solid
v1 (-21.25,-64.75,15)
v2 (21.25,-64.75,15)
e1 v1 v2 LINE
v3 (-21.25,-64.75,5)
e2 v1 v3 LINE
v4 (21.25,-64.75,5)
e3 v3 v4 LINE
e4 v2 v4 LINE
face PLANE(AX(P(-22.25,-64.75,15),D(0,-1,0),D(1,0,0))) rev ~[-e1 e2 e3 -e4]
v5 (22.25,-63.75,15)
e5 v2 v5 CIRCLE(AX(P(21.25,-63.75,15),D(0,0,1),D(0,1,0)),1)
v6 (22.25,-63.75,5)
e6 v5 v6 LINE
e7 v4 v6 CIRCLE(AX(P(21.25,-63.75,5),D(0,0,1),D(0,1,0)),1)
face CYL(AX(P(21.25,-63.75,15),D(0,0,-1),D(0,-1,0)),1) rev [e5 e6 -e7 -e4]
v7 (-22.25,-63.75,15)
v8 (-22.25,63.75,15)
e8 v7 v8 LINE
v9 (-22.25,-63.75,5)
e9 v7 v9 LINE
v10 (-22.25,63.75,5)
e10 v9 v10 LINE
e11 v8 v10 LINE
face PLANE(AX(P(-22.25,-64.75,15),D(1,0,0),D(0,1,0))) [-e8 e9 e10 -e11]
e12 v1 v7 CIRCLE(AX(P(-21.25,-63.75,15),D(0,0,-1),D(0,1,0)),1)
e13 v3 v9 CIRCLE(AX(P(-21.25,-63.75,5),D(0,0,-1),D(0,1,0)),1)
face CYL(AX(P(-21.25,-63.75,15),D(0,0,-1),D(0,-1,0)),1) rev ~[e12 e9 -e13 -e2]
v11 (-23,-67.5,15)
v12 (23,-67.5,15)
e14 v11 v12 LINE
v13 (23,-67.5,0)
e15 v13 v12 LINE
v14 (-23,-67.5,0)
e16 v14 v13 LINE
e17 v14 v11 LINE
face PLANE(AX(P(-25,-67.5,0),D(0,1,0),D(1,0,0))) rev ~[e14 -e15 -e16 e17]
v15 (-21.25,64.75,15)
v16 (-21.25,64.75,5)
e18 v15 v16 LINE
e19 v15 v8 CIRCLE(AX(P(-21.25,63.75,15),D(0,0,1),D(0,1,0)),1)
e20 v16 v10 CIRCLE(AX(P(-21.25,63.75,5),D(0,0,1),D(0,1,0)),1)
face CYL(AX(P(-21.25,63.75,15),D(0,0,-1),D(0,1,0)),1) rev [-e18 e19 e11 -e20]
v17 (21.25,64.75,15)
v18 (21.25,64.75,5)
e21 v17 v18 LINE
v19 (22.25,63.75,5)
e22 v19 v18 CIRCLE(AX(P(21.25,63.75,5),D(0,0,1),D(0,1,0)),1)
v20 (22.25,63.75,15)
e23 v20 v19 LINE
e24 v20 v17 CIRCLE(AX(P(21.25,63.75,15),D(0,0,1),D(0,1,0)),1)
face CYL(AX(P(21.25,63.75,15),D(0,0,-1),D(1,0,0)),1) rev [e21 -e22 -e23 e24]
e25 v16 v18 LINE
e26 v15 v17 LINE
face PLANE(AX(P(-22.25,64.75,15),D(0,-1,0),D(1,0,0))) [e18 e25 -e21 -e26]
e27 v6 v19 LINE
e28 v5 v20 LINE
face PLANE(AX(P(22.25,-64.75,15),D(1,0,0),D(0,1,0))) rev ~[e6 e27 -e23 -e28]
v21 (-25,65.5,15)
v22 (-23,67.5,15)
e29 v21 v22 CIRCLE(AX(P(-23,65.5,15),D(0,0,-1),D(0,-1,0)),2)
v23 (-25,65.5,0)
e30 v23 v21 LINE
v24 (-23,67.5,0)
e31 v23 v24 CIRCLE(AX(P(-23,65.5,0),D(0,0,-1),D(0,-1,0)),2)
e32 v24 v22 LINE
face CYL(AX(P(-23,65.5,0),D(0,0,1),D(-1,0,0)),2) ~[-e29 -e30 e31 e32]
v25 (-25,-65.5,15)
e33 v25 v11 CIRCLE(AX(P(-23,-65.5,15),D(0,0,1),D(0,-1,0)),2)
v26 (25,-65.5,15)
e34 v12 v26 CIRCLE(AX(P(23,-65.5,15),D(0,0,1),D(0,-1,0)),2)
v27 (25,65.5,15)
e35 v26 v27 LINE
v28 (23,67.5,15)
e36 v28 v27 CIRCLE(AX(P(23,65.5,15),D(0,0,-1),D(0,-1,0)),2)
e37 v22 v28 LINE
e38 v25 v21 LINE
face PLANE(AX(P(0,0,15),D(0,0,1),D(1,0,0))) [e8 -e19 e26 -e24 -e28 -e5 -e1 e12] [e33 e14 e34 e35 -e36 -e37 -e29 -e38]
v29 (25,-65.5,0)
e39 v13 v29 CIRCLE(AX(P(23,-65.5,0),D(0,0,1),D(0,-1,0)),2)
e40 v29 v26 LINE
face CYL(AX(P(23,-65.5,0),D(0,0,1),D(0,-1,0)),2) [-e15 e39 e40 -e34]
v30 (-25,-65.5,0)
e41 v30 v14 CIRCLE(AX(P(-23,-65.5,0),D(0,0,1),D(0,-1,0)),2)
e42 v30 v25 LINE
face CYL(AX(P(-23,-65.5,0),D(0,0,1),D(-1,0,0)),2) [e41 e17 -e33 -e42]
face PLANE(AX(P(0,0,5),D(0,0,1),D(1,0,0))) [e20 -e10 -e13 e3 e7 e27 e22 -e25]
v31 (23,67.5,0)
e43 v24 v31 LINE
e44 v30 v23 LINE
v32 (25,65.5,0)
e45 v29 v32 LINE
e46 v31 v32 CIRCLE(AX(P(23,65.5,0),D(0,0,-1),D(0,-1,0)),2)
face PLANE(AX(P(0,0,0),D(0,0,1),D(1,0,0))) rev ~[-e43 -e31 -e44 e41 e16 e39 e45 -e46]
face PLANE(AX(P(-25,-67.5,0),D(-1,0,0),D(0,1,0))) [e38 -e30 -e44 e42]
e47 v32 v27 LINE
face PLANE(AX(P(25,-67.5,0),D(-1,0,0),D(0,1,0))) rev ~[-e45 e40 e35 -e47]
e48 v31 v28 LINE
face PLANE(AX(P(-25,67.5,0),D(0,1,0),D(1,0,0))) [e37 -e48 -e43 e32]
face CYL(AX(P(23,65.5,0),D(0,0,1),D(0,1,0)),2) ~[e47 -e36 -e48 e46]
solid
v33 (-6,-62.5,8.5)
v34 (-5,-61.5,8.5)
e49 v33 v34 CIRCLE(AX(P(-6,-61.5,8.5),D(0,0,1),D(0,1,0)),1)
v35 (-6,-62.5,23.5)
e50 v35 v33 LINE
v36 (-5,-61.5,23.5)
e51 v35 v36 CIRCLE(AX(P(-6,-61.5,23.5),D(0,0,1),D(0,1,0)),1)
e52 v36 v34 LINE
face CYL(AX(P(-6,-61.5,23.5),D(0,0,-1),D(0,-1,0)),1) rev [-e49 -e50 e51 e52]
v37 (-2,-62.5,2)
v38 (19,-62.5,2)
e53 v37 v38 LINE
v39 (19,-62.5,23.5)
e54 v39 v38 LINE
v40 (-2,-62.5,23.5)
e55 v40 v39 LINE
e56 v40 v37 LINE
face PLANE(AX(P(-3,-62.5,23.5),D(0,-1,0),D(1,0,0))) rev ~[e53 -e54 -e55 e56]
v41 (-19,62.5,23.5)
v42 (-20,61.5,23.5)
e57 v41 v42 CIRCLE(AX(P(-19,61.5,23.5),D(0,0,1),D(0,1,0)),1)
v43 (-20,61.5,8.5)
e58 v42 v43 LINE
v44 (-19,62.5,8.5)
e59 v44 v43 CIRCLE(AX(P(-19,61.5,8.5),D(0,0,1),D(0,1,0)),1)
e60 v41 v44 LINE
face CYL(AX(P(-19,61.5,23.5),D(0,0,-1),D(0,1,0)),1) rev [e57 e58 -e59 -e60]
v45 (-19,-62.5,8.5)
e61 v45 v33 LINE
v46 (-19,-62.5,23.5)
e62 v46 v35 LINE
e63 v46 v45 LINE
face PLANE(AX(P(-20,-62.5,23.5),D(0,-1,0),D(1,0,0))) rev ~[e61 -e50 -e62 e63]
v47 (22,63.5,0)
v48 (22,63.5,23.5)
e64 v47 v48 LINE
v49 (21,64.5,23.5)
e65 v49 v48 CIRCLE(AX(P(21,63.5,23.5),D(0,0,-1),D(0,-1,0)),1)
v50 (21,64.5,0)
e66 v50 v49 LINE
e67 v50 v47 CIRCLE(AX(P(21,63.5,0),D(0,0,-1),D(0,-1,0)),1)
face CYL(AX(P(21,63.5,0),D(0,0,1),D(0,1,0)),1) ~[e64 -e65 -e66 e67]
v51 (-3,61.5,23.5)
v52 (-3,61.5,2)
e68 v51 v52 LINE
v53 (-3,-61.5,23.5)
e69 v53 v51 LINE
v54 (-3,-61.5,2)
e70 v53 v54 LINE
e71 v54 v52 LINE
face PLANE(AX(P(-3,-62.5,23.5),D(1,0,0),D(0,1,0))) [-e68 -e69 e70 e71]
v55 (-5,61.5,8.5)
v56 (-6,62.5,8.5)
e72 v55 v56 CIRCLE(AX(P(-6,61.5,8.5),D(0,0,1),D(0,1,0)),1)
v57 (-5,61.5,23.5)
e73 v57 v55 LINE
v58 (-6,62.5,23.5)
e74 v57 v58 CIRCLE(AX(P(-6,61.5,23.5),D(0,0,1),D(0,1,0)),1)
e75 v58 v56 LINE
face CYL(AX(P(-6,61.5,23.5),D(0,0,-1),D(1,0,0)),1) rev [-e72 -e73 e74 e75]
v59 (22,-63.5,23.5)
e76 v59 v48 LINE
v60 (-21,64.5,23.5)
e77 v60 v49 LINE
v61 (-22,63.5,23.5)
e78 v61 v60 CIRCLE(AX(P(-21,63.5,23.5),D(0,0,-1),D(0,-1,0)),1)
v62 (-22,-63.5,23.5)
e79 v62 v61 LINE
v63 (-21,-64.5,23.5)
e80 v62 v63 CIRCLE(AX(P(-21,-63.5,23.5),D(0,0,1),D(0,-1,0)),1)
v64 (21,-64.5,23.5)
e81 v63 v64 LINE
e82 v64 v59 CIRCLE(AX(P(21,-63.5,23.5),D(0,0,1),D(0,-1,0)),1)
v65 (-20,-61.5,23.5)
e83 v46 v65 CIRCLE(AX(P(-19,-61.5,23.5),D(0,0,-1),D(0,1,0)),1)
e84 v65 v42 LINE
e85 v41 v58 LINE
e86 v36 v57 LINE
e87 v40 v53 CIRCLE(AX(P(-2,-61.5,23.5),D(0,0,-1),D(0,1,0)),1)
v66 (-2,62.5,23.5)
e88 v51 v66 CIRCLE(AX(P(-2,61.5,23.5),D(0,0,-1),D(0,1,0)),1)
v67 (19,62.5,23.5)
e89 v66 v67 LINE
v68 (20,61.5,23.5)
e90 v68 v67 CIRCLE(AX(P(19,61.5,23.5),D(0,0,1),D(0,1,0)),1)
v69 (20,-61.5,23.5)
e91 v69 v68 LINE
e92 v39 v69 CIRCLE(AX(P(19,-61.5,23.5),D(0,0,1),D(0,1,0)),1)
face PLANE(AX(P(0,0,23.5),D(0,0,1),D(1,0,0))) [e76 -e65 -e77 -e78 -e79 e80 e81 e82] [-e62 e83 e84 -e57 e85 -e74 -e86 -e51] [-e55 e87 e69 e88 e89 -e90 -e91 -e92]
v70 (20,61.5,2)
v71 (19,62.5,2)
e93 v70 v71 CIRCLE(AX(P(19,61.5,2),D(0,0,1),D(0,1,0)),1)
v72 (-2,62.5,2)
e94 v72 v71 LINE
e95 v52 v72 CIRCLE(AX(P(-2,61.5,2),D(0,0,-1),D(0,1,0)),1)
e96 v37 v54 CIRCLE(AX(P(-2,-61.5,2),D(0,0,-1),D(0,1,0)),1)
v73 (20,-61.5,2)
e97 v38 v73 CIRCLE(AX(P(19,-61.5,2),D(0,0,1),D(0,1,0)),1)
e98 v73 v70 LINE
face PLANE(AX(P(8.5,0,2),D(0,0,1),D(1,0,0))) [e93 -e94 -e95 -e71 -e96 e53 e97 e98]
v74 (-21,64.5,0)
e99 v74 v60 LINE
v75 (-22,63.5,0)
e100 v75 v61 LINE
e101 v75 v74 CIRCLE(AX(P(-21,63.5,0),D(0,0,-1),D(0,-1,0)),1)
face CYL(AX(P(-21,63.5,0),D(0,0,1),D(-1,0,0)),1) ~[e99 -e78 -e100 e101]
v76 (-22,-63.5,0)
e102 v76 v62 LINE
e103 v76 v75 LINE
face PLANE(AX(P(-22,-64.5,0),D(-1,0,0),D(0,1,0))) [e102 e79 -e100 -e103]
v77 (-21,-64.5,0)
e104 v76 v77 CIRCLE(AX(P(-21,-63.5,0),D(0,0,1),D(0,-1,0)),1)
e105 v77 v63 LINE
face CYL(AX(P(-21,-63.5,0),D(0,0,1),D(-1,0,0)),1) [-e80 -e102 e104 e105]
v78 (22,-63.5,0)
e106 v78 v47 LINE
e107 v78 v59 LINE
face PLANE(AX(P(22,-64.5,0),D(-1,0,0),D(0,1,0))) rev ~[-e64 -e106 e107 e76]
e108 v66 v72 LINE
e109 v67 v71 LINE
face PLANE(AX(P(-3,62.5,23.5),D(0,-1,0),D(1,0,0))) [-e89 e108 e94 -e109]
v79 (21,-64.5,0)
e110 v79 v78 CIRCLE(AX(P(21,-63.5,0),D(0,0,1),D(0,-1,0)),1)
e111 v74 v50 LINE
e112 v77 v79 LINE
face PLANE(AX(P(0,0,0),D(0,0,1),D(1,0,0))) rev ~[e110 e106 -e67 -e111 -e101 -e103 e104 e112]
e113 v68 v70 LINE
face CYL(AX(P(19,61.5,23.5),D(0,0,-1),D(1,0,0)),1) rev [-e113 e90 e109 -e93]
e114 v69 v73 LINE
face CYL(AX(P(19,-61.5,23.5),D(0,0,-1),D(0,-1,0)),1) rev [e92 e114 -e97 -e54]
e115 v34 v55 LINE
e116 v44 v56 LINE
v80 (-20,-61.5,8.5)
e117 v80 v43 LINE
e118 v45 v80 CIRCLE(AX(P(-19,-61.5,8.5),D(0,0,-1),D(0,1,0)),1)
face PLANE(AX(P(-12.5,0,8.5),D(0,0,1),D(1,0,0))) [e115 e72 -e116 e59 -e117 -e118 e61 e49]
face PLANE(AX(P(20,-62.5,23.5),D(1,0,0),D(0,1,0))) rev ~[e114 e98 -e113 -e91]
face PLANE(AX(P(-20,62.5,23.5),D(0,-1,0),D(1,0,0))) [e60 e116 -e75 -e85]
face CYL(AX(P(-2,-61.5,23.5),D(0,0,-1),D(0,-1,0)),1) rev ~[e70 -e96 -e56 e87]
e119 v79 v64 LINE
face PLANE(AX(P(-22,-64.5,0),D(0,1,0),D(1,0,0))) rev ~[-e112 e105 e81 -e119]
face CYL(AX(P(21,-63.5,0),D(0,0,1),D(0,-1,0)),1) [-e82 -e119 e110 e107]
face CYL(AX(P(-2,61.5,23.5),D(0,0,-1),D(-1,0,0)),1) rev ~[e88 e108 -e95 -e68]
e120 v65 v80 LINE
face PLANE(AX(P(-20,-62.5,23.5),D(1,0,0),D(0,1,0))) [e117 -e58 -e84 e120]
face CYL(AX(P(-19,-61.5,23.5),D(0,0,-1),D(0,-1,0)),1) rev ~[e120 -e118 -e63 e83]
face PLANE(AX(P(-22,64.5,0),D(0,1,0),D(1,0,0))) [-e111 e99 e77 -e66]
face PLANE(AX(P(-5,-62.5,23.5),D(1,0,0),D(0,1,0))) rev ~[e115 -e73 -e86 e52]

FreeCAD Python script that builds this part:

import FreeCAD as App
import Part
import Sketcher
from FreeCAD import Vector
Q = App.Units.Quantity


def edges_at(feature, points):
    """Names of the edges that pass closest to the given points."""
    edges = feature.Shape.Edges
    near = lambda p: min(range(len(edges)), key=lambda i: edges[i].distToShape(Part.Vertex(*p))[0])
    return sorted({f"Edge{near(p) + 1}" for p in points})


def add_polygon(sketch, points):
    """Adds a closed chain of lines whose ends are joined by coincident constraints."""
    first, n = sketch.GeometryCount, len(points)
    for a, b in zip(points, points[1:] + points[:1]):
        sketch.addGeometry(Part.LineSegment(App.Vector(*a, 0), App.Vector(*b, 0)), False)
    for i in range(n):
        sketch.addConstraint(Sketcher.Constraint("Coincident", first + i, 2, first + (i + 1) % n, 1))

doc = App.newDocument("Part")
params = doc.addObject("Spreadsheet::Sheet", "Params")
for row, (alias, value) in enumerate([
    ("sketch1_width", "44 mm"),
    ("sketch1_height", "129 mm"),
    ("pad1_length", "23.5 mm"),
    ("sketch2_width", "23 mm"),
    ("sketch2_height", "125 mm"),
    ("pocket1_length", "21.5 mm"),
    ("sketch3_width", "15 mm"),
    ("sketch3_height", "125 mm"),
    ("pocket2_length", "15 mm"),
    ("fillet_radius", "1 mm"),
    ("fillet2_radius", "1 mm"),
    ("fillet3_radius", "1 mm"),
    ("sketch4_width", "50 mm"),
    ("sketch4_height", "135 mm"),
    ("pad2_length", "15 mm"),
    ("sketch5_width", "44.5 mm"),
    ("sketch5_height", "129.5 mm"),
    ("pocket3_length", "10 mm"),
    ("fillet4_radius", "2 mm"),
    ("fillet5_radius", "1 mm"),
], start=1):
    params.set(f"A{row}", alias)
    params.set(f"B{row}", "=" + value)
    params.setAlias(f"B{row}", alias)

body = doc.addObject("PartDesign::Body", "Body")

sketch1 = body.newObject("Sketcher::SketchObject", "Sketch")
sketch1.AttachmentSupport = (doc.getObject("XY_Plane"), [""])
sketch1.MapMode = "FlatFace"
add_polygon(sketch1, [(-22, 64.5), (-22, -64.5), (22, -64.5), (22, 64.5)])
sketch1.addConstraint([
    Sketcher.Constraint("Vertical", 0),
    Sketcher.Constraint("Horizontal", 1),
    Sketcher.Constraint("Vertical", 2),
    Sketcher.Constraint("Horizontal", 3),
    Sketcher.Constraint("Symmetric", 0, 2, 2, 2, -1, 1),
    Sketcher.Constraint("DistanceX", 1, 1, 1, 2, Q("44 mm")),
    Sketcher.Constraint("DistanceY", 0, 2, 0, 1, Q("129 mm")),
])
sketch1.setExpression("Constraints[9]", "Params.sketch1_width")
sketch1.setExpression("Constraints[10]", "Params.sketch1_height")
pad1 = body.newObject("PartDesign::Pad", "Pad")
pad1.Profile = sketch1
pad1.setExpression("Length", "Params.pad1_length")

sketch2 = body.newObject("Sketcher::SketchObject", "Sketch001")
sketch2.AttachmentSupport = (doc.getObject("XY_Plane"), [""])
sketch2.MapMode = "FlatFace"
sketch2.AttachmentOffset = App.Placement(Vector(0, 0, 23.5), App.Rotation())
add_polygon(sketch2, [(-3, 62.5), (-3, -62.5), (20, -62.5), (20, 62.5)])
sketch2.addConstraint([
    Sketcher.Constraint("Vertical", 0),
    Sketcher.Constraint("Horizontal", 1),
    Sketcher.Constraint("Vertical", 2),
    Sketcher.Constraint("Horizontal", 3),
    Sketcher.Constraint("DistanceX", 1, 1, 1, 2, Q("23 mm")),
    Sketcher.Constraint("DistanceY", 0, 2, 0, 1, Q("125 mm")),
    Sketcher.Constraint("DistanceX", 0, 2, -1, 1, Q("3 mm")),
    Sketcher.Constraint("DistanceY", 0, 2, -1, 1, Q("62.5 mm")),
])
sketch2.setExpression("Constraints[8]", "Params.sketch2_width")
sketch2.setExpression("Constraints[9]", "Params.sketch2_height")
pocket1 = body.newObject("PartDesign::Pocket", "Pocket")
pocket1.Profile = sketch2
pocket1.setExpression("Length", "Params.pocket1_length")

sketch3 = body.newObject("Sketcher::SketchObject", "Sketch002")
sketch3.AttachmentSupport = (doc.getObject("XY_Plane"), [""])
sketch3.MapMode = "FlatFace"
sketch3.AttachmentOffset = App.Placement(Vector(0, 0, 23.5), App.Rotation())
add_polygon(sketch3, [(-20, 62.5), (-20, -62.5), (-5, -62.5), (-5, 62.5)])
sketch3.addConstraint([
    Sketcher.Constraint("Vertical", 0),
    Sketcher.Constraint("Horizontal", 1),
    Sketcher.Constraint("Vertical", 2),
    Sketcher.Constraint("Horizontal", 3),
    Sketcher.Constraint("DistanceX", 1, 1, 1, 2, Q("15 mm")),
    Sketcher.Constraint("DistanceY", 0, 2, 0, 1, Q("125 mm")),
    Sketcher.Constraint("DistanceX", 0, 2, -1, 1, Q("20 mm")),
    Sketcher.Constraint("DistanceY", 0, 2, -1, 1, Q("62.5 mm")),
])
sketch3.setExpression("Constraints[8]", "Params.sketch3_width")
sketch3.setExpression("Constraints[9]", "Params.sketch3_height")
pocket2 = body.newObject("PartDesign::Pocket", "Pocket001")
pocket2.Profile = sketch3
pocket2.setExpression("Length", "Params.pocket2_length")
doc.recompute()

fillet = body.newObject("PartDesign::Fillet", "Fillet")
fillet.Base = (pocket2, edges_at(pocket2, [
    (22, -64.5, 11.75),
    (-22, -64.5, 11.75),
    (22, 64.5, 11.75),
    (-22, 64.5, 11.75),
]))
fillet.setExpression("Radius", "Params.fillet_radius")
doc.recompute()

fillet2 = body.newObject("PartDesign::Fillet", "Fillet001")
fillet2.Base = (fillet, edges_at(fillet, [
    (-5, 62.5, 16),
    (-20, 62.5, 16),
    (-20, -62.5, 16),
    (-5, -62.5, 16),
]))
fillet2.setExpression("Radius", "Params.fillet2_radius")
doc.recompute()

fillet3 = body.newObject("PartDesign::Fillet", "Fillet002")
fillet3.Base = (fillet2, edges_at(fillet2, [
    (-3, -62.5, 12.75),
    (20, -62.5, 12.75),
    (20, 62.5, 12.75),
    (-3, 62.5, 12.75),
]))
fillet3.setExpression("Radius", "Params.fillet3_radius")
body2 = doc.addObject("PartDesign::Body", "Body001")

sketch4 = body2.newObject("Sketcher::SketchObject", "Sketch003")
sketch4.AttachmentSupport = (doc.getObject("XY_Plane001"), [""])
sketch4.MapMode = "FlatFace"
add_polygon(sketch4, [(-25, 67.5), (-25, -67.5), (25, -67.5), (25, 67.5)])
sketch4.addConstraint([
    Sketcher.Constraint("Vertical", 0),
    Sketcher.Constraint("Horizontal", 1),
    Sketcher.Constraint("Vertical", 2),
    Sketcher.Constraint("Horizontal", 3),
    Sketcher.Constraint("Symmetric", 0, 2, 2, 2, -1, 1),
    Sketcher.Constraint("DistanceX", 1, 1, 1, 2, Q("50 mm")),
    Sketcher.Constraint("DistanceY", 0, 2, 0, 1, Q("135 mm")),
])
sketch4.setExpression("Constraints[9]", "Params.sketch4_width")
sketch4.setExpression("Constraints[10]", "Params.sketch4_height")
pad2 = body2.newObject("PartDesign::Pad", "Pad001")
pad2.Profile = sketch4
pad2.setExpression("Length", "Params.pad2_length")

sketch5 = body2.newObject("Sketcher::SketchObject", "Sketch004")
sketch5.AttachmentSupport = (doc.getObject("XY_Plane001"), [""])
sketch5.MapMode = "FlatFace"
sketch5.AttachmentOffset = App.Placement(Vector(0, 0, 15), App.Rotation())
add_polygon(sketch5, [(-22.25, 64.75), (-22.25, -64.75), (22.25, -64.75), (22.25, 64.75)])
sketch5.addConstraint([
    Sketcher.Constraint("Vertical", 0),
    Sketcher.Constraint("Horizontal", 1),
    Sketcher.Constraint("Vertical", 2),
    Sketcher.Constraint("Horizontal", 3),
    Sketcher.Constraint("Symmetric", 0, 2, 2, 2, -1, 1),
    Sketcher.Constraint("DistanceX", 1, 1, 1, 2, Q("44.5 mm")),
    Sketcher.Constraint("DistanceY", 0, 2, 0, 1, Q("129.5 mm")),
])
sketch5.setExpression("Constraints[9]", "Params.sketch5_width")
sketch5.setExpression("Constraints[10]", "Params.sketch5_height")
pocket3 = body2.newObject("PartDesign::Pocket", "Pocket002")
pocket3.Profile = sketch5
pocket3.setExpression("Length", "Params.pocket3_length")
doc.recompute()

fillet4 = body2.newObject("PartDesign::Fillet", "Fillet003")
fillet4.Base = (pocket3, edges_at(pocket3, [
    (25, -67.5, 7.5),
    (-25, -67.5, 7.5),
    (-25, 67.5, 7.5),
    (25, 67.5, 7.5),
]))
fillet4.setExpression("Radius", "Params.fillet4_radius")
doc.recompute()

fillet5 = body2.newObject("PartDesign::Fillet", "Fillet004")
fillet5.Base = (fillet4, edges_at(fillet4, [
    (22.25, -64.75, 10),
    (-22.25, -64.75, 10),
    (22.25, 64.75, 10),
    (-22.25, 64.75, 10),
]))
fillet5.setExpression("Radius", "Params.fillet5_radius")

doc.recompute()
